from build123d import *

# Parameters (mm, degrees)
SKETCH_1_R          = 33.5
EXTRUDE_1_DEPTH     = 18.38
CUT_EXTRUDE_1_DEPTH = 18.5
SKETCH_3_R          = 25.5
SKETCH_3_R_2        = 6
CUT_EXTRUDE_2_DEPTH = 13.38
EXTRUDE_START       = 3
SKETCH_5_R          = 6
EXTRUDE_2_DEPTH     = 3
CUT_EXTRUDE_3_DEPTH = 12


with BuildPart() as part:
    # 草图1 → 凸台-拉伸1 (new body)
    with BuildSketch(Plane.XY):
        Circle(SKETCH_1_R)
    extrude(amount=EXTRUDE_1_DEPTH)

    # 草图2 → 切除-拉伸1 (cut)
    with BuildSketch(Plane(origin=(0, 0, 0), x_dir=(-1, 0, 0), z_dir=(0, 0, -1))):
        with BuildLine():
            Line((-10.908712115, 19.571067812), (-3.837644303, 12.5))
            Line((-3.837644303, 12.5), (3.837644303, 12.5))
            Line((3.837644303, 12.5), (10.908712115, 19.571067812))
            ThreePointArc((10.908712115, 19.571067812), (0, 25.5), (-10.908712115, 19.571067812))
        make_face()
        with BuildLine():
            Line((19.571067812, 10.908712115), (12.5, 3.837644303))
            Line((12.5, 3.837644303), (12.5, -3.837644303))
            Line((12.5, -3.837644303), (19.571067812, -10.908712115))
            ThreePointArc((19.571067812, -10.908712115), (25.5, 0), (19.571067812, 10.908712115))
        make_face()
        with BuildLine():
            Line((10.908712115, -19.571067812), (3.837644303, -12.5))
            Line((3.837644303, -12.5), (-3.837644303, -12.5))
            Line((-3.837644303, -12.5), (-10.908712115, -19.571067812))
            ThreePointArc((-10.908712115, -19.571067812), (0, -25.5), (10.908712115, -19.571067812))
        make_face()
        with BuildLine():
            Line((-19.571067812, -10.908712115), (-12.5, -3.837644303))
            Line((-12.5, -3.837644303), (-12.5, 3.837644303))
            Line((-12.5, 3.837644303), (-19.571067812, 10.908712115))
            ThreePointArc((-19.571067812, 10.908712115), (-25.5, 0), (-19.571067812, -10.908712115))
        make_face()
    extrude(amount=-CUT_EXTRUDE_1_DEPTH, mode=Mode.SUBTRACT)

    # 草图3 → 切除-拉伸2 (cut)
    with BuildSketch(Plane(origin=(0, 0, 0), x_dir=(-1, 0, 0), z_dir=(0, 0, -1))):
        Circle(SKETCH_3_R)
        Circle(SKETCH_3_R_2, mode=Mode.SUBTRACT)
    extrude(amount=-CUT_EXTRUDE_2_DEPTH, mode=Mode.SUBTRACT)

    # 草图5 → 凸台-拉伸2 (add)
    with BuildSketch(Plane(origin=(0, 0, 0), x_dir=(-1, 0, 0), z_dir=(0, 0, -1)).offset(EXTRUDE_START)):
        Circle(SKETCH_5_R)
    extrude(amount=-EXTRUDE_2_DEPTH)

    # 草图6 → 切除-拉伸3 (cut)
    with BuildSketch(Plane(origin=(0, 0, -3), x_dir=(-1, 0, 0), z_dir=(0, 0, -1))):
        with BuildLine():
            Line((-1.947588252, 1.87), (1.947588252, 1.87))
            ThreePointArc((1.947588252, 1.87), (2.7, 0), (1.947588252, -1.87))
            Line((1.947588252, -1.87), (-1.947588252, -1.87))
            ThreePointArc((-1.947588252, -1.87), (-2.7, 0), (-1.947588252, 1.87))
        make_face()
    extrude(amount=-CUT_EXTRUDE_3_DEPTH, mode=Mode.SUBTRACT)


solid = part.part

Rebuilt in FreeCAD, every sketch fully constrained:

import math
import FreeCAD as App
import Part
import Sketcher

V = App.Vector
Q = App.Units.Quantity

doc = App.newDocument("Part")
body = doc.addObject("PartDesign::Body", "Body")

# Sketch on XY plane
sketch1 = body.newObject("Sketcher::SketchObject", "Sketch")
sketch1.AttachmentSupport = (doc.getObject("XY_Plane"), [""])
sketch1.MapMode = "FlatFace"
sketch1.addGeometry(Part.Circle(V(0, 0, 0), V(0, 0, 1), 34), False)
sketch1.addConstraint([
    Sketcher.Constraint("Coincident", 0, 3, -1, 1),
    Sketcher.Constraint("Diameter", 0, Q("67 mm")),
])
pad1 = body.newObject("PartDesign::Pad", "Pad")
pad1.Profile = sketch1
pad1.Length = 18.38

# Sketch on XY plane
sketch2 = body.newObject("Sketcher::SketchObject", "Sketch001")
sketch2.AttachmentSupport = (doc.getObject("XY_Plane"), [""])
sketch2.MapMode = "FlatFace"
sketch2.addGeometry([
    Part.LineSegment(V(11, 20, 0), V(4, 12, 0)),  # 0
    Part.LineSegment(V(4, 12, 0), V(-4, 12, 0)),  # 1
    Part.LineSegment(V(-4, 12, 0), V(-11, 20, 0)),  # 2
    Part.ArcOfCircle(Part.Circle(V(0, 12, 0), V(0, 0, 1), 13), math.radians(33), math.radians(147)),  # 3
    Part.LineSegment(V(-20, 11, 0), V(-12, 4, 0)),  # 4
    Part.LineSegment(V(-12, 4, 0), V(-12, -4, 0)),  # 5
    Part.LineSegment(V(-12, -4, 0), V(-20, -11, 0)),  # 6
    Part.ArcOfCircle(Part.Circle(V(-12, 0, 0), V(0, 0, 1), 13), math.radians(123), math.radians(237)),  # 7
    Part.LineSegment(V(-11, -20, 0), V(-4, -12, 0)),  # 8
    Part.LineSegment(V(-4, -12, 0), V(4, -12, 0)),  # 9
    Part.LineSegment(V(4, -12, 0), V(11, -20, 0)),  # 10
    Part.ArcOfCircle(Part.Circle(V(0, -12, 0), V(0, 0, 1), 13), math.radians(-147), math.radians(-33)),  # 11
    Part.LineSegment(V(20, -11, 0), V(12, -4, 0)),  # 12
    Part.LineSegment(V(12, -4, 0), V(12, 4, 0)),  # 13
    Part.LineSegment(V(12, 4, 0), V(20, 11, 0)),  # 14
    Part.ArcOfCircle(Part.Circle(V(12, 0, 0), V(0, 0, 1), 13), math.radians(-57), math.radians(57)),  # 15
], False)
sketch2.addConstraint([
    Sketcher.Constraint("Coincident", 0, 2, 1, 1),
    Sketcher.Constraint("Coincident", 1, 2, 2, 1),
    Sketcher.Constraint("Coincident", 2, 2, 3, 2),
    Sketcher.Constraint("Coincident", 3, 1, 0, 1),
    Sketcher.Constraint("Coincident", 4, 2, 5, 1),
    Sketcher.Constraint("Coincident", 5, 2, 6, 1),
    Sketcher.Constraint("Coincident", 6, 2, 7, 2),
    Sketcher.Constraint("Coincident", 7, 1, 4, 1),
    Sketcher.Constraint("Coincident", 8, 2, 9, 1),
    Sketcher.Constraint("Coincident", 9, 2, 10, 1),
    Sketcher.Constraint("Coincident", 10, 2, 11, 2),
    Sketcher.Constraint("Coincident", 11, 1, 8, 1),
    Sketcher.Constraint("Coincident", 12, 2, 13, 1),
    Sketcher.Constraint("Coincident", 13, 2, 14, 1),
    Sketcher.Constraint("Coincident", 14, 2, 15, 2),
    Sketcher.Constraint("Coincident", 15, 1, 12, 1),
    Sketcher.Constraint("Horizontal", 1),
    Sketcher.Constraint("Vertical", 5),
    Sketcher.Constraint("Horizontal", 9),
    Sketcher.Constraint("Vertical", 13),
    Sketcher.Constraint("Equal", 3, 7),
    Sketcher.Constraint("Equal", 7, 11),
    Sketcher.Constraint("Equal", 11, 15),
    Sketcher.Constraint("Symmetric", 3, 3, 11, 3, -1, 1),
    Sketcher.Constraint("Symmetric", 7, 3, 15, 3, -1, 1),
    Sketcher.Constraint("Symmetric", 0, 2, 8, 2, -1, 1),
    Sketcher.Constraint("Symmetric", 4, 2, 12, 2, -1, 1),
    Sketcher.Constraint("Symmetric", 2, 2, 3, 1, -2),
    Sketcher.Constraint("Symmetric", 7, 1, 14, 2, -2),
    Sketcher.Constraint("Perpendicular", 0, 2),
    Sketcher.Constraint("Parallel", 2, 4),
    Sketcher.Constraint("Perpendicular", 4, 6),
    Sketcher.Constraint("Parallel", 6, 8),
    Sketcher.Constraint("Perpendicular", 8, 10),
    Sketcher.Constraint("Parallel", 10, 12),
    Sketcher.Constraint("Perpendicular", 12, 14),
    Sketcher.Constraint("Horizontal", 3, 3, 0, 2),
    Sketcher.Constraint("Horizontal", 10, 2, 11, 1),
    Sketcher.Constraint("Horizontal", 5, 2, 12, 2),
    Sketcher.Constraint("Horizontal", 4, 2, 13, 2),
    Sketcher.Constraint("Vertical", 7, 3, 4, 2),
    Sketcher.Constraint("Equal", 9, 5),
    Sketcher.Constraint("Radius", 3, Q("13 mm")),
    Sketcher.Constraint("Distance", 0, Q("10 mm")),
    Sketcher.Constraint("DistanceY", 11, 3, 3, 3, Q("25 mm")),
    Sketcher.Constraint("DistanceX", 7, 3, 15, 3, Q("25 mm")),
])
pocket1 = body.newObject("PartDesign::Pocket", "Pocket")
pocket1.Profile = sketch2
pocket1.Length = 18.5
pocket1.Reversed = True

# Sketch on XY plane
sketch3 = body.newObject("Sketcher::SketchObject", "Sketch002")
sketch3.AttachmentSupport = (doc.getObject("XY_Plane"), [""])
sketch3.MapMode = "FlatFace"
sketch3.addGeometry([
    Part.Circle(V(0, 0, 0), V(0, 0, 1), 26),
    Part.Circle(V(0, 0, 0), V(0, 0, 1), 6),
], False)
sketch3.addConstraint([
    Sketcher.Constraint("Coincident", 0, 3, -1, 1),
    Sketcher.Constraint("Coincident", 1, 3, -1, 1),
    Sketcher.Constraint("Diameter", 0, Q("51 mm")),
    Sketcher.Constraint("Diameter", 1, Q("12 mm")),
])
pocket2 = body.newObject("PartDesign::Pocket", "Pocket001")
pocket2.Profile = sketch3
pocket2.Length = 13.38
pocket2.Reversed = True

# Sketch on XY plane
sketch4 = body.newObject("Sketcher::SketchObject", "Sketch003")
sketch4.AttachmentSupport = (doc.getObject("XY_Plane"), [""])
sketch4.MapMode = "FlatFace"
sketch4.AttachmentOffset = App.Placement(V(0, 0, -3), App.Rotation())
sketch4.addGeometry(Part.Circle(V(0, 0, 0), V(0, 0, 1), 6), False)
sketch4.addConstraint([
    Sketcher.Constraint("Coincident", 0, 3, -1, 1),
    Sketcher.Constraint("Diameter", 0, Q("12 mm")),
])
pad2 = body.newObject("PartDesign::Pad", "Pad001")
pad2.Profile = sketch4
pad2.Length = 3

# Sketch on XY plane
sketch5 = body.newObject("Sketcher::SketchObject", "Sketch004")
sketch5.AttachmentSupport = (doc.getObject("XY_Plane"), [""])
sketch5.MapMode = "FlatFace"
sketch5.AttachmentOffset = App.Placement(V(0, 0, -3), App.Rotation())
sketch5.addGeometry([
    Part.LineSegment(V(-1.9, 1.9, 0), V(1.9, 1.9, 0)),
    Part.ArcOfCircle(Part.Circle(V(0, 0, 0), V(0, 0, 1), 2.7), math.radians(-44), math.radians(44)),
    Part.LineSegment(V(1.9, -1.9, 0), V(-1.9, -1.9, 0)),
    Part.ArcOfCircle(Part.Circle(V(0, 0, 0), V(0, 0, 1), 2.7), math.radians(136), math.radians(224)),
], False)
sketch5.addConstraint([
    Sketcher.Constraint("Coincident", 0, 2, 1, 2),
    Sketcher.Constraint("Coincident", 1, 1, 2, 1),
    Sketcher.Constraint("Coincident", 2, 2, 3, 2),
    Sketcher.Constraint("Coincident", 3, 1, 0, 1),
    Sketcher.Constraint("Horizontal", 0),
    Sketcher.Constraint("Horizontal", 2),
    Sketcher.Constraint("Coincident", 1, 3, -1, 1),
    Sketcher.Constraint("Coincident", 3, 3, -1, 1),
    Sketcher.Constraint("Equal", 1, 3),
    Sketcher.Constraint("Vertical", 0, 2, 1, 1),
    Sketcher.Constraint("Radius", 1, Q("2.7 mm")),
    Sketcher.Constraint("DistanceY", -1, 1, 0, 2, Q("1.87 mm")),
])
pocket3 = body.newObject("PartDesign::Pocket", "Pocket002")
pocket3.Profile = sketch5
pocket3.Length = 12
pocket3.Reversed = True

doc.recompute()
